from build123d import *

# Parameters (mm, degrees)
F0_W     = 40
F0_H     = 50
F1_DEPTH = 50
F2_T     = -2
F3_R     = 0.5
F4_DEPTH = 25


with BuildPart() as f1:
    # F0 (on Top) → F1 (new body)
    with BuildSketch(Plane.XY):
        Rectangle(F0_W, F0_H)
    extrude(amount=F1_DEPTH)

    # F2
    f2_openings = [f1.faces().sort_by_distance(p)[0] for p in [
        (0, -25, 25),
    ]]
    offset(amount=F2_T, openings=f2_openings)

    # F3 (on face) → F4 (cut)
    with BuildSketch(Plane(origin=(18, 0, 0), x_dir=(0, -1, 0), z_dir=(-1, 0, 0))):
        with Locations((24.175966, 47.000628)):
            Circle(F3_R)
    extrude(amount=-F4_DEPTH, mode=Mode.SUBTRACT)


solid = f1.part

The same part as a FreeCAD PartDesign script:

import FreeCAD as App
import Part
import Sketcher


def faces_at(feature, points):
    """Names of the faces that lie closest to the given points."""
    faces = feature.Shape.Faces
    near = lambda p: min(range(len(faces)), key=lambda i: faces[i].distToShape(Part.Vertex(*p))[0])
    return sorted({f"Face{near(p) + 1}" for p in points})

doc = App.newDocument("Part")
params = doc.addObject("Spreadsheet::Sheet", "Params")
for row, (alias, value) in enumerate([
    ("sketch1_width", "40 mm"),
    ("sketch1_height", "50 mm"),
    ("pad1_length", "50 mm"),
    ("thickness_wall", "2 mm"),
    ("sketch2_diameter", "1 mm"),
    ("pocket1_length", "25 mm"),
], start=1):
    params.set(f"A{row}", alias)
    params.set(f"B{row}", "=" + value)
    params.setAlias(f"B{row}", alias)

body = doc.addObject("PartDesign::Body", "Body")

# Sketch on XY plane
sketch1 = body.newObject("Sketcher::SketchObject", "Sketch")
sketch1.AttachmentSupport = (doc.getObject("XY_Plane"), [""])
sketch1.MapMode = "FlatFace"
sketch1.addGeometry([
    Part.LineSegment(App.Vector(-20, 25, 0), App.Vector(-20, -25, 0)),
    Part.LineSegment(App.Vector(-20, -25, 0), App.Vector(20, -25, 0)),
    Part.LineSegment(App.Vector(20, -25, 0), App.Vector(20, 25, 0)),
    Part.LineSegment(App.Vector(20, 25, 0), App.Vector(-20, 25, 0)),
], False)
sketch1.addConstraint([
    Sketcher.Constraint("Coincident", 0, 2, 1, 1),
    Sketcher.Constraint("Coincident", 1, 2, 2, 1),
    Sketcher.Constraint("Coincident", 2, 2, 3, 1),
    Sketcher.Constraint("Coincident", 3, 2, 0, 1),
    Sketcher.Constraint("Vertical", 0),
    Sketcher.Constraint("Horizontal", 1),
    Sketcher.Constraint("Vertical", 2),
    Sketcher.Constraint("Horizontal", 3),
    Sketcher.Constraint("Symmetric", 0, 2, 2, 2, -1, 1),
    Sketcher.Constraint("DistanceX", 1, 1, 1, 2, 40.0),
    Sketcher.Constraint("DistanceY", 0, 2, 0, 1, 50.0),
])
sketch1.setExpression("Constraints[9]", "Params.sketch1_width")
sketch1.setExpression("Constraints[10]", "Params.sketch1_height")
pad1 = body.newObject("PartDesign::Pad", "Pad")
pad1.Profile = sketch1
pad1.setExpression("Length", "Params.pad1_length")
doc.recompute()

thickness = body.newObject("PartDesign::Thickness", "Thickness")
thickness.Base = (pad1, faces_at(pad1, [(0, -25, 25)]))
thickness.setExpression("Value", "Params.thickness_wall")
thickness.Reversed = True
thickness.Join = "Arc"

# Sketch on YZ plane
sketch2 = body.newObject("Sketcher::SketchObject", "Sketch001")
sketch2.AttachmentSupport = (doc.getObject("YZ_Plane"), [""])
sketch2.MapMode = "FlatFace"
sketch2.AttachmentOffset = App.Placement(App.Vector(0, 0, 18), App.Rotation())
sketch2.addGeometry(Part.Circle(App.Vector(-24.175966, 47.000628, 0), App.Vector(0, 0, 1), 0.5), False)
sketch2.addConstraint([
    Sketcher.Constraint("Diameter", 0, 1.0),
    Sketcher.Constraint("DistanceX", 0, 3, -1, 1, 24.175966),
    Sketcher.Constraint("DistanceY", -1, 1, 0, 3, 47.000628),
])
sketch2.setExpression("Constraints[0]", "Params.sketch2_diameter")
pocket1 = body.newObject("PartDesign::Pocket", "Pocket")
pocket1.Profile = sketch2
pocket1.setExpression("Length", "Params.pocket1_length")
pocket1.Reversed = True

doc.recompute()
